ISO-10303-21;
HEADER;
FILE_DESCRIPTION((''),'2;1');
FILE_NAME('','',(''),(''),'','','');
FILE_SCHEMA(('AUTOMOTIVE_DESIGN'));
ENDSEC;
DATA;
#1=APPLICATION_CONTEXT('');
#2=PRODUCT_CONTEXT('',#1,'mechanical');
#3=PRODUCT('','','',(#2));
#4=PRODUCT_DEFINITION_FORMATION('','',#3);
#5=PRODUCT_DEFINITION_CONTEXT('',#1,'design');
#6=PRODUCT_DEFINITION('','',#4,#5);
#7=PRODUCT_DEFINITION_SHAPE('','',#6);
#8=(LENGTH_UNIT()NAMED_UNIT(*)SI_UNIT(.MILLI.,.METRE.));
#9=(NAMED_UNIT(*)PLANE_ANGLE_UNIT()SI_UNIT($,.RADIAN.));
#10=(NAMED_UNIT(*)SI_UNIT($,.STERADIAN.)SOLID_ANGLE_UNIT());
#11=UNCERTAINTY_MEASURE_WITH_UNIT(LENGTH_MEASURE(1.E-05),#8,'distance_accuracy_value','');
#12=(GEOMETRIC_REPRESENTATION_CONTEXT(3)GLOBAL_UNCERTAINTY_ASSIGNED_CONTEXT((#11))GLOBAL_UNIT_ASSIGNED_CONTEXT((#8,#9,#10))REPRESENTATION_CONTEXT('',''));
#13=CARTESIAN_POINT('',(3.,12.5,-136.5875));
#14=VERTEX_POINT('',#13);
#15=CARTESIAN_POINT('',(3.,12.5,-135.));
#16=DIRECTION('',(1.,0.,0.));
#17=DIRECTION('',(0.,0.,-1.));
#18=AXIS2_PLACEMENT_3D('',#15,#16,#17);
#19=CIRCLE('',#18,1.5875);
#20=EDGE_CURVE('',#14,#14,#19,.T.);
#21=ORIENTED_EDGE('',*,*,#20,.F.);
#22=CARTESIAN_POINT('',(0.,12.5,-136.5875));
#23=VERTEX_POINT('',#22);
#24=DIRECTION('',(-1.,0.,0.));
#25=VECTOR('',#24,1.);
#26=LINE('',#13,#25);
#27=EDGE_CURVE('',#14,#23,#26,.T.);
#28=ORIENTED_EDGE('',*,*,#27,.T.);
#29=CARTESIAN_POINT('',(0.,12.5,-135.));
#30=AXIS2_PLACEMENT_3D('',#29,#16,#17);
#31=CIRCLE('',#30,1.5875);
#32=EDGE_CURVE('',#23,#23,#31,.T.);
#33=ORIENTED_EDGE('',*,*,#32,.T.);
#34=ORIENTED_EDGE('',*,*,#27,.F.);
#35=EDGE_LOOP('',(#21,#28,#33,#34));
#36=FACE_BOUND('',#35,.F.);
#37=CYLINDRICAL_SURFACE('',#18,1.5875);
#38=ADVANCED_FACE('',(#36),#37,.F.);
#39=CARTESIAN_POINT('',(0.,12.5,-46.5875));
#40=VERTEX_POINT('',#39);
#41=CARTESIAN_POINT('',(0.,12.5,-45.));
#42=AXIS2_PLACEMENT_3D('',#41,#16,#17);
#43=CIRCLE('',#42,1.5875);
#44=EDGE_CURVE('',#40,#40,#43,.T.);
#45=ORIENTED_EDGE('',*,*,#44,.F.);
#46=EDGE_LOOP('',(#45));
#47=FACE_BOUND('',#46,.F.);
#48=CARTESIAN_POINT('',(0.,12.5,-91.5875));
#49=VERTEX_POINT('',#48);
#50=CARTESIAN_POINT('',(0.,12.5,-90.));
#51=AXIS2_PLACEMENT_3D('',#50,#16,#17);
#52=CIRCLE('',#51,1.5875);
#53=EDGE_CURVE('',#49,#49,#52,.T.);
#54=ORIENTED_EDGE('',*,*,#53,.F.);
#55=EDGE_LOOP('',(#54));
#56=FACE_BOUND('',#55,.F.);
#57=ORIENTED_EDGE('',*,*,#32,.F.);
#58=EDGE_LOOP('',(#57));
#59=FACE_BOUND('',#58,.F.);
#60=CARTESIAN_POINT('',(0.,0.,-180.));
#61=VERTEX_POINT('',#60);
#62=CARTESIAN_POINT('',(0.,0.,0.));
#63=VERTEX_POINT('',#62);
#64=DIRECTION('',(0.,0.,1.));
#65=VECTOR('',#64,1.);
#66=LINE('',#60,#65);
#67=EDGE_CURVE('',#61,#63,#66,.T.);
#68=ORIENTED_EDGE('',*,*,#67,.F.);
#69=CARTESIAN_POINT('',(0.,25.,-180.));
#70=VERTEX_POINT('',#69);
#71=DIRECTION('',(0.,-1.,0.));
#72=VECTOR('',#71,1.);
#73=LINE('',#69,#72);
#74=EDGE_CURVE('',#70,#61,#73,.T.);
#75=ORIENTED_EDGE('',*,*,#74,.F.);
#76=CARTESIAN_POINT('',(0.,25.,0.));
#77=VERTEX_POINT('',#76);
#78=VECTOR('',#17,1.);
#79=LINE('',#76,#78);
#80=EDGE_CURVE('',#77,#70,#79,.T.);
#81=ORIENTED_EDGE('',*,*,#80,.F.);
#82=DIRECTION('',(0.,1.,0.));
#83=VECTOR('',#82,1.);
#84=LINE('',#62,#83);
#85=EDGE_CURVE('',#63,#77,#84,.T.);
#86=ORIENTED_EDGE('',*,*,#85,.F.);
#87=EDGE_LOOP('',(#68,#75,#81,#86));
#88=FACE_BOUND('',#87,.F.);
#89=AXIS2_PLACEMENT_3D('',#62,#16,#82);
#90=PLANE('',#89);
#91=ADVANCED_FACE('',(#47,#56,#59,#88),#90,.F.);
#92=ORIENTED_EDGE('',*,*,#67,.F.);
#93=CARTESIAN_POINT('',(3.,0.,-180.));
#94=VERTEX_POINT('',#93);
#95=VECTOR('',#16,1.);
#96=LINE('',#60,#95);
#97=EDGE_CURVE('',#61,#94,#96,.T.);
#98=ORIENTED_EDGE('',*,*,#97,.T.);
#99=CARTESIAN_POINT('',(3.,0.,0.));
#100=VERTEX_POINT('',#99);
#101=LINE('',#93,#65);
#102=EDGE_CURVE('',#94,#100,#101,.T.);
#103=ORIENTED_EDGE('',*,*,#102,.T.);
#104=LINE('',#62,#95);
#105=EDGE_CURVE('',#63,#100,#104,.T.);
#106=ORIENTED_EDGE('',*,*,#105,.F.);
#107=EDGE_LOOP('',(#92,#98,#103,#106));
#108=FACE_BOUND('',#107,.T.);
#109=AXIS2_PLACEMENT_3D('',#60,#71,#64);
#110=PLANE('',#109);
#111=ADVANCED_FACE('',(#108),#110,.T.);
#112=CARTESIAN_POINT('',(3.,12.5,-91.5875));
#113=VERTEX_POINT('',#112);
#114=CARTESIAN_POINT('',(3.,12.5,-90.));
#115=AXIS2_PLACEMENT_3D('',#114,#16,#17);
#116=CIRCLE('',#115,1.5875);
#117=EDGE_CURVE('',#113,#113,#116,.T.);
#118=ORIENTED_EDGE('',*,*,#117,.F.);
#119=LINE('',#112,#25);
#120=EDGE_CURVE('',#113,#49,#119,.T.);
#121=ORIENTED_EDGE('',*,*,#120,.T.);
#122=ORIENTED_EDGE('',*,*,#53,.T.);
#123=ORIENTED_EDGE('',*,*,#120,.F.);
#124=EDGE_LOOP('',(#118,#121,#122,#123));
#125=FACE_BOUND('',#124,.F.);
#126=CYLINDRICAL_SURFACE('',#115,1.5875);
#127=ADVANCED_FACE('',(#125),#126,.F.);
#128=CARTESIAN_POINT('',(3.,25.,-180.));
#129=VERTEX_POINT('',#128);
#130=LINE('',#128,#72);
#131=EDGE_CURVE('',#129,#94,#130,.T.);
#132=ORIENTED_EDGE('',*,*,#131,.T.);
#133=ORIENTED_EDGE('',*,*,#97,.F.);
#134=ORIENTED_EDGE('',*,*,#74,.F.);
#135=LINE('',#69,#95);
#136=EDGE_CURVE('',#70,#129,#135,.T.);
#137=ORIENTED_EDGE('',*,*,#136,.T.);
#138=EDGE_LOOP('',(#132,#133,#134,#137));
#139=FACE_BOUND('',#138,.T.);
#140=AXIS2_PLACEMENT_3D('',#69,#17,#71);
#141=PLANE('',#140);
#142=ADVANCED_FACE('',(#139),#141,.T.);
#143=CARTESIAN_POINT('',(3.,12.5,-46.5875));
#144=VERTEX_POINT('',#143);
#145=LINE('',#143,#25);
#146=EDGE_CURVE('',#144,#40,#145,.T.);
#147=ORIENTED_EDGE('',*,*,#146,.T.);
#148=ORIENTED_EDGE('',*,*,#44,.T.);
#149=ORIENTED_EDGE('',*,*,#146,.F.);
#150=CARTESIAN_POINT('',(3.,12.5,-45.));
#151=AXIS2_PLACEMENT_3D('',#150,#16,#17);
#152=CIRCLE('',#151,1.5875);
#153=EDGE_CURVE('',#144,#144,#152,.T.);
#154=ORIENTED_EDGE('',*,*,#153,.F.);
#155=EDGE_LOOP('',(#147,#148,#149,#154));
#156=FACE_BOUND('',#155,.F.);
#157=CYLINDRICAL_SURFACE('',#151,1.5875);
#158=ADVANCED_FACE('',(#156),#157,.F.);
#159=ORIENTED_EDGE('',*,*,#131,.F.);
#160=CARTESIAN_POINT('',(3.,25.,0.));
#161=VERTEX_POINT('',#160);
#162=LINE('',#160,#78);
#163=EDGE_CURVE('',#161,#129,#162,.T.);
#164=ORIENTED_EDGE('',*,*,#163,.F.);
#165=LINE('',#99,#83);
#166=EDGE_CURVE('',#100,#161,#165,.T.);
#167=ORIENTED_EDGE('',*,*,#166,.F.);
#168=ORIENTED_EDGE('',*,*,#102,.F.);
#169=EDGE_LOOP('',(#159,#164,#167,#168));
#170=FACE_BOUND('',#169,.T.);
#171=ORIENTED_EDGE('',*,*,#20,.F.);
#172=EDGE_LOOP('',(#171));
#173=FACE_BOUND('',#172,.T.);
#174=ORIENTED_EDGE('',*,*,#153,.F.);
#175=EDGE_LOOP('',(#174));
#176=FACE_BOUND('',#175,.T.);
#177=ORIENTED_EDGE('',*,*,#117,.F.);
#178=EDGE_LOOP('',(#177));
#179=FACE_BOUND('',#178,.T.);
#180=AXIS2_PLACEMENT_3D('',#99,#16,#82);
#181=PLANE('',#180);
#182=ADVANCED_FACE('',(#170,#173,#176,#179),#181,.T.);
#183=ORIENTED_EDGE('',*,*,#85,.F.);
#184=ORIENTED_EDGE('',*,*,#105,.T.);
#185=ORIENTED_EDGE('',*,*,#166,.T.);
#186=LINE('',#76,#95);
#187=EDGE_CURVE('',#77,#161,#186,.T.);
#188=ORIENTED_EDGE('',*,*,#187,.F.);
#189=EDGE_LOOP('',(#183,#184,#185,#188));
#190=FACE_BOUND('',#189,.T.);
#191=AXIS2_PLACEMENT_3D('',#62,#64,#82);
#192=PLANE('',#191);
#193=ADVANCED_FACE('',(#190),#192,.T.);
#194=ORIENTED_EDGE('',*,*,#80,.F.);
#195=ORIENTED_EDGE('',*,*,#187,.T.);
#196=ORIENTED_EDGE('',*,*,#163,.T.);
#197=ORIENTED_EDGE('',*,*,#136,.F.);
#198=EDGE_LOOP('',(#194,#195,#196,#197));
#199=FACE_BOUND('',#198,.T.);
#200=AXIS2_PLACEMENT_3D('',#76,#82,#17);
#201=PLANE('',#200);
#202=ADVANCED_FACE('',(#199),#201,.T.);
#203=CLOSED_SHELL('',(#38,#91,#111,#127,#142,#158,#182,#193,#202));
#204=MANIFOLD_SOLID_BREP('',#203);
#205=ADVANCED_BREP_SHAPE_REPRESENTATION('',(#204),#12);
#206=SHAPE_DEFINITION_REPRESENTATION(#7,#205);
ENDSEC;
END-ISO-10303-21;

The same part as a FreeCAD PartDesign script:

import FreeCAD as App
import Part
import Sketcher
Q = App.Units.Quantity

doc = App.newDocument("Part")
body = doc.addObject("PartDesign::Body", "Body")

# Sketch on YZ plane
sketch1 = body.newObject("Sketcher::SketchObject", "Sketch")
sketch1.AttachmentSupport = (doc.getObject("YZ_Plane"), [""])
sketch1.MapMode = "FlatFace"
sketch1.addGeometry([
    Part.LineSegment(App.Vector(25, 0, 0), App.Vector(0, 0, 0)),
    Part.LineSegment(App.Vector(0, 0, 0), App.Vector(0, -180, 0)),
    Part.LineSegment(App.Vector(0, -180, 0), App.Vector(25, -180, 0)),
    Part.LineSegment(App.Vector(25, -180, 0), App.Vector(25, 0, 0)),
], False)
sketch1.addConstraint([
    Sketcher.Constraint("Coincident", 0, 2, 1, 1),
    Sketcher.Constraint("Coincident", 1, 2, 2, 1),
    Sketcher.Constraint("Coincident", 2, 2, 3, 1),
    Sketcher.Constraint("Coincident", 3, 2, 0, 1),
    Sketcher.Constraint("Horizontal", 0),
    Sketcher.Constraint("Vertical", 1),
    Sketcher.Constraint("Horizontal", 2),
    Sketcher.Constraint("Vertical", 3),
    Sketcher.Constraint("Coincident", 0, 2, -1, 1),
    Sketcher.Constraint("DistanceX", 0, 2, 0, 1, Q("25 mm")),
    Sketcher.Constraint("DistanceY", 1, 2, 1, 1, Q("180 mm")),
])
pad1 = body.newObject("PartDesign::Pad", "Pad")
pad1.Profile = sketch1
pad1.Length = 3

# Sketch on YZ plane
sketch2 = body.newObject("Sketcher::SketchObject", "Sketch001")
sketch2.AttachmentSupport = (doc.getObject("YZ_Plane"), [""])
sketch2.MapMode = "FlatFace"
sketch2.AttachmentOffset = App.Placement(App.Vector(0, 0, 3), App.Rotation())
sketch2.addGeometry([
    Part.Circle(App.Vector(12.5, -45, 0), App.Vector(0, 0, 1), 1.5875),
    Part.Circle(App.Vector(12.5, -90, 0), App.Vector(0, 0, 1), 1.5875),
    Part.Circle(App.Vector(12.5, -135, 0), App.Vector(0, 0, 1), 1.5875),
], False)
sketch2.addConstraint([
    Sketcher.Constraint("Equal", 0, 1),
    Sketcher.Constraint("Equal", 1, 2),
    Sketcher.Constraint("Vertical", 0, 3, 1, 3),
    Sketcher.Constraint("Vertical", 1, 3, 2, 3),
    Sketcher.Constraint("Diameter", 0, Q("3.175 mm")),
    Sketcher.Constraint("DistanceY", 0, 3, -1, 1, Q("45 mm")),
    Sketcher.Constraint("DistanceY", 1, 3, 0, 3, Q("45 mm")),
    Sketcher.Constraint("DistanceY", 2, 3, 1, 3, Q("45 mm")),
    Sketcher.Constraint("DistanceX", -1, 1, 0, 3, Q("12.5 mm")),
])
pocket1 = body.newObject("PartDesign::Pocket", "Pocket")
pocket1.Profile = sketch2
pocket1.Length = 3

doc.recompute()
